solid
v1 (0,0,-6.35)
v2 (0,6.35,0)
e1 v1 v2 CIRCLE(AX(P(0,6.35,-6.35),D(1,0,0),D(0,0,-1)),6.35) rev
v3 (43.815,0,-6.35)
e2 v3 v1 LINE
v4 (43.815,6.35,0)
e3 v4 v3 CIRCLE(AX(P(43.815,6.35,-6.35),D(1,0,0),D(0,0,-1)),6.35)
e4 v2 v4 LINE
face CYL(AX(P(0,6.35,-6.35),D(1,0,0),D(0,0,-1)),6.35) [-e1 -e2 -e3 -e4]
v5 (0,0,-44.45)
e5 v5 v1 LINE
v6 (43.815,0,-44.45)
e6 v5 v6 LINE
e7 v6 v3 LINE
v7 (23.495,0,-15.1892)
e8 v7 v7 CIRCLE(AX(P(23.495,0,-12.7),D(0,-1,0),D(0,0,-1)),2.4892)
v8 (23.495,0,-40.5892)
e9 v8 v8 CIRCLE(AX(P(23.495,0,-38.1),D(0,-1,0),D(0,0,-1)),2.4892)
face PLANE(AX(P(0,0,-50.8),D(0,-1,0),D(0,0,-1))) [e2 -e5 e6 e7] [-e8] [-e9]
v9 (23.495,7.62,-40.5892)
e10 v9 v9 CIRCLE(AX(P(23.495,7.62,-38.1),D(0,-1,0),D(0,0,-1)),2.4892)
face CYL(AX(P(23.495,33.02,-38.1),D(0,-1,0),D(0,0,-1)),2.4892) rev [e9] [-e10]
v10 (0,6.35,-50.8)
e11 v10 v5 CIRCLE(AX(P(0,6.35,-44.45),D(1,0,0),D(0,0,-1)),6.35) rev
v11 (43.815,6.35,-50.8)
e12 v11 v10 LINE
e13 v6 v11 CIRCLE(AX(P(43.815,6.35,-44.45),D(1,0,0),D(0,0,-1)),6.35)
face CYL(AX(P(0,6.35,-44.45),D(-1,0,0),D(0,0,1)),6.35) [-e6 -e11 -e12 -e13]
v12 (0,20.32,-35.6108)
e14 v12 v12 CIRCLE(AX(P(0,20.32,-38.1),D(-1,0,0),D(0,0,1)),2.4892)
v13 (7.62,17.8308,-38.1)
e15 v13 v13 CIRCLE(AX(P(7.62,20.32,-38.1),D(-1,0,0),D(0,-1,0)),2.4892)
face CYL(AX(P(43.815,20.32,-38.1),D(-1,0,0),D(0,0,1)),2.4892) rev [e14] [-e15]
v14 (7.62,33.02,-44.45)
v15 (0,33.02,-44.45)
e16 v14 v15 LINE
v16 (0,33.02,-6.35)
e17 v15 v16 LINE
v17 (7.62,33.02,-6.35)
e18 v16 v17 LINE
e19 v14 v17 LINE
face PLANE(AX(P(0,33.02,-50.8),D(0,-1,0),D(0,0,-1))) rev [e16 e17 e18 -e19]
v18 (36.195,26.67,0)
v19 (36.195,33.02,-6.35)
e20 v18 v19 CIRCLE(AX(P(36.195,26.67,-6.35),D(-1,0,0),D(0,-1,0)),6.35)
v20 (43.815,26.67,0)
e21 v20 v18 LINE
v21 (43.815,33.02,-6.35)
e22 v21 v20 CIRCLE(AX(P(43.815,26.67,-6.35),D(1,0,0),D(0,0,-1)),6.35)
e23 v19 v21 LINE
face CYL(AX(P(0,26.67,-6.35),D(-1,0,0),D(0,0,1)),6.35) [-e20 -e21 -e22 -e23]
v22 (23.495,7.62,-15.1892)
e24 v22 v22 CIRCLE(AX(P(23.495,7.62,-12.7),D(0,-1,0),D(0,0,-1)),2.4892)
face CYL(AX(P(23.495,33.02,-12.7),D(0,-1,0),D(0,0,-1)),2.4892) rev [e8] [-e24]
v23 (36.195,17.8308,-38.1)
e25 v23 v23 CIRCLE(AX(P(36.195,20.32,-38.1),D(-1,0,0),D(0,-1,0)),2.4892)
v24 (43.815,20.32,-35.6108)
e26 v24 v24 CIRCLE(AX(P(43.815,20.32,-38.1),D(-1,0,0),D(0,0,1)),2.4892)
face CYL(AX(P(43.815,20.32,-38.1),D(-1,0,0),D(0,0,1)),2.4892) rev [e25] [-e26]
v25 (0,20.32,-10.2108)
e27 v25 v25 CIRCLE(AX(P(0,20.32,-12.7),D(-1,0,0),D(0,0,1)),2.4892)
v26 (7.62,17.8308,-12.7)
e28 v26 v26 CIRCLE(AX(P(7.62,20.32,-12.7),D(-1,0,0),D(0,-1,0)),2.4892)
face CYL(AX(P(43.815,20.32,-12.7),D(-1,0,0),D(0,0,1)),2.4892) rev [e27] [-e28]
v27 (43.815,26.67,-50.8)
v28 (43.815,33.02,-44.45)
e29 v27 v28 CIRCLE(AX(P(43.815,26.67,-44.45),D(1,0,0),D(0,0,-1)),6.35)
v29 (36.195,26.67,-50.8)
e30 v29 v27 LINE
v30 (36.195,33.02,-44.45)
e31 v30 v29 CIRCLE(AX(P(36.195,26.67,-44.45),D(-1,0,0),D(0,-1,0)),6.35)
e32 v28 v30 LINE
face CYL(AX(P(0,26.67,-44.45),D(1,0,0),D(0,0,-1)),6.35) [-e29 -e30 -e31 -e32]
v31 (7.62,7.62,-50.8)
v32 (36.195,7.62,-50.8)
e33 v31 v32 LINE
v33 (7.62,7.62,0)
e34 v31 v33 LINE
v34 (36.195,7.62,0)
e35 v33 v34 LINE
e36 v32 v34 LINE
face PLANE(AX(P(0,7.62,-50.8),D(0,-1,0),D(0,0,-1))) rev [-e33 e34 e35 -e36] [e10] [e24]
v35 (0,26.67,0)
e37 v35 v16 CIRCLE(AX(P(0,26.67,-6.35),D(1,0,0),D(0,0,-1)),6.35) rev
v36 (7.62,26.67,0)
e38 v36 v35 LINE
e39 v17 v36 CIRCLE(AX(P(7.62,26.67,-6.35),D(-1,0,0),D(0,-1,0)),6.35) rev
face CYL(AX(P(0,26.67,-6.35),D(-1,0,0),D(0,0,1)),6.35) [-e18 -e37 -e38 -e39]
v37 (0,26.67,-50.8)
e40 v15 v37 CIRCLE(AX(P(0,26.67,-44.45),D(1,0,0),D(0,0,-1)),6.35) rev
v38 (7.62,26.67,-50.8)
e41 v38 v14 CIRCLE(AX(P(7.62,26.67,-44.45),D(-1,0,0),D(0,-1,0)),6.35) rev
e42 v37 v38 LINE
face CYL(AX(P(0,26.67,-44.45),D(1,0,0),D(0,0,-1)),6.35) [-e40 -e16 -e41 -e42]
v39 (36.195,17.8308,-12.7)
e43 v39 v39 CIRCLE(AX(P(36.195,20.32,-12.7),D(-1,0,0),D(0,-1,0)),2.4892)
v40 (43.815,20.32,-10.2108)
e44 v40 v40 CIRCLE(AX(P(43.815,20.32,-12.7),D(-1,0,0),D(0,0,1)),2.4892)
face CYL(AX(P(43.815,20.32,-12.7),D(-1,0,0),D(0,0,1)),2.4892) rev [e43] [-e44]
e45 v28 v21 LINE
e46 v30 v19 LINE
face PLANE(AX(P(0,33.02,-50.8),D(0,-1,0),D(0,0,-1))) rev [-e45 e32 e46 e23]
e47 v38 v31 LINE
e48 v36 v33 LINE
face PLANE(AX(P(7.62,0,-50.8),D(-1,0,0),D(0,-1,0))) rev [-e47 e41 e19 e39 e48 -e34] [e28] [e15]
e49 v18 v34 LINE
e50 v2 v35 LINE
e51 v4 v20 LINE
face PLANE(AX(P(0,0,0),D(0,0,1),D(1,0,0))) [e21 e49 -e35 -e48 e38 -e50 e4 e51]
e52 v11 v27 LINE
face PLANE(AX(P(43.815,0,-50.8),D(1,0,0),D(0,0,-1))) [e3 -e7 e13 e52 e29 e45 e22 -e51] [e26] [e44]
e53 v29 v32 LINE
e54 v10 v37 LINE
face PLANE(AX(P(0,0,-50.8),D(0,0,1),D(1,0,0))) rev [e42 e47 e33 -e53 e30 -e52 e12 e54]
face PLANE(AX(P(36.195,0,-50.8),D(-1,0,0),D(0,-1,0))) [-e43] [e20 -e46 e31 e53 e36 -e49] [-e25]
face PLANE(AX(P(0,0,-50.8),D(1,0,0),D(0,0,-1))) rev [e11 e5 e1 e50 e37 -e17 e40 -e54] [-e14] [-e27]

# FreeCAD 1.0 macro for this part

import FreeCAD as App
import Part
import Sketcher

V = App.Vector
Q = App.Units.Quantity


def edges_at(feature, points):
    """Names of the edges that pass closest to the given points."""
    edges = feature.Shape.Edges
    near = lambda p: min(range(len(edges)), key=lambda i: edges[i].distToShape(Part.Vertex(*p))[0])
    return sorted({f"Edge{near(p) + 1}" for p in points})

doc = App.newDocument("Part")
body = doc.addObject("PartDesign::Body", "Body")

sketch1 = body.newObject("Sketcher::SketchObject", "Sketch")
sketch1.AttachmentSupport = (doc.getObject("XY_Plane"), [""])
sketch1.MapMode = "FlatFace"
sketch1.addGeometry([
    Part.LineSegment(V(0, 33, 0), V(0, 0, 0)),
    Part.LineSegment(V(0, 0, 0), V(44, 0, 0)),
    Part.LineSegment(V(44, 0, 0), V(44, 33, 0)),
    Part.LineSegment(V(44, 33, 0), V(36, 33, 0)),
    Part.LineSegment(V(36, 33, 0), V(36, 8, 0)),
    Part.LineSegment(V(36, 8, 0), V(8, 8, 0)),
    Part.LineSegment(V(8, 8, 0), V(8, 33, 0)),
    Part.LineSegment(V(8, 33, 0), V(0, 33, 0)),
], False)
sketch1.addConstraint([
    Sketcher.Constraint("Coincident", 0, 2, 1, 1),
    Sketcher.Constraint("Coincident", 1, 2, 2, 1),
    Sketcher.Constraint("Coincident", 2, 2, 3, 1),
    Sketcher.Constraint("Coincident", 3, 2, 4, 1),
    Sketcher.Constraint("Coincident", 4, 2, 5, 1),
    Sketcher.Constraint("Coincident", 5, 2, 6, 1),
    Sketcher.Constraint("Coincident", 6, 2, 7, 1),
    Sketcher.Constraint("Coincident", 7, 2, 0, 1),
    Sketcher.Constraint("Vertical", 0),
    Sketcher.Constraint("Horizontal", 1),
    Sketcher.Constraint("Vertical", 2),
    Sketcher.Constraint("Horizontal", 3),
    Sketcher.Constraint("Vertical", 4),
    Sketcher.Constraint("Horizontal", 5),
    Sketcher.Constraint("Vertical", 6),
    Sketcher.Constraint("Horizontal", 7),
    Sketcher.Constraint("Coincident", 0, 2, -1, 1),
    Sketcher.Constraint("Horizontal", 3, 2, 6, 2),
    Sketcher.Constraint("Equal", 3, 7),
    Sketcher.Constraint("DistanceY", 4, 2, 4, 1, Q("1 in")),
    Sketcher.Constraint("DistanceX", 3, 2, 3, 1, Q("0.3 in")),
    Sketcher.Constraint("DistanceY", 0, 2, 0, 1, Q("1.3 in")),
    Sketcher.Constraint("DistanceX", 1, 1, 1, 2, Q("1.725 in")),
])
pad1 = body.newObject("PartDesign::Pad", "Pad")
pad1.Profile = sketch1
pad1.Length = Q("2 in")
pad1.Reversed = True
doc.recompute()

fillet = body.newObject("PartDesign::Fillet", "Fillet")
fillet.Base = (pad1, edges_at(pad1, [
    (21.907, 0, 0),
    (3.81, 33.02, 0),
    (40.005, 33.02, 0),
    (3.81, 33.02, -50.8),
    (21.907, 0, -50.8),
    (40.005, 33.02, -50.8),
]))
fillet.Radius = Q("0.25 in")

sketch2 = body.newObject("Sketcher::SketchObject", "Sketch001")
sketch2.AttachmentSupport = (doc.getObject("YZ_Plane"), [""])
sketch2.MapMode = "FlatFace"
sketch2.addGeometry([
    Part.Circle(V(20.3, -38.1, 0), V(0, 0, 1), 2.5),
    Part.Circle(V(20.3, -12.7, 0), V(0, 0, 1), 2.5),
], False)
sketch2.addConstraint([
    Sketcher.Constraint("Equal", 0, 1),
    Sketcher.Constraint("Vertical", 0, 3, 1, 3),
    Sketcher.Constraint("Diameter", 0, Q("0.196 in")),
    Sketcher.Constraint("DistanceY", 0, 3, 1, 3, Q("1 in")),
    Sketcher.Constraint("DistanceX", -1, 1, 0, 3, Q("0.8 in")),
    Sketcher.Constraint("DistanceY", 0, 3, -1, 1, Q("1.5 in")),
])
pocket1 = body.newObject("PartDesign::Pocket", "Pocket")
pocket1.Profile = sketch2
pocket1.Type = "ThroughAll"
pocket1.Reversed = True

sketch3 = body.newObject("Sketcher::SketchObject", "Sketch002")
sketch3.AttachmentSupport = (doc.getObject("XZ_Plane"), [""])
sketch3.MapMode = "FlatFace"
sketch3.addGeometry([
    Part.Circle(V(23.5, -38.1, 0), V(0, 0, 1), 2.5),
    Part.Circle(V(23.5, -12.7, 0), V(0, 0, 1), 2.5),
], False)
sketch3.addConstraint([
    Sketcher.Constraint("Equal", 0, 1),
    Sketcher.Constraint("Vertical", 0, 3, 1, 3),
    Sketcher.Constraint("Diameter", 0, Q("0.196 in")),
    Sketcher.Constraint("DistanceY", 0, 3, 1, 3, Q("1 in")),
    Sketcher.Constraint("DistanceY", 0, 3, -1, 1, Q("1.5 in")),
    Sketcher.Constraint("DistanceX", -1, 1, 0, 3, Q("0.925 in")),
])
pocket2 = body.newObject("PartDesign::Pocket", "Pocket001")
pocket2.Profile = sketch3
pocket2.Type = "ThroughAll"

doc.recompute()
